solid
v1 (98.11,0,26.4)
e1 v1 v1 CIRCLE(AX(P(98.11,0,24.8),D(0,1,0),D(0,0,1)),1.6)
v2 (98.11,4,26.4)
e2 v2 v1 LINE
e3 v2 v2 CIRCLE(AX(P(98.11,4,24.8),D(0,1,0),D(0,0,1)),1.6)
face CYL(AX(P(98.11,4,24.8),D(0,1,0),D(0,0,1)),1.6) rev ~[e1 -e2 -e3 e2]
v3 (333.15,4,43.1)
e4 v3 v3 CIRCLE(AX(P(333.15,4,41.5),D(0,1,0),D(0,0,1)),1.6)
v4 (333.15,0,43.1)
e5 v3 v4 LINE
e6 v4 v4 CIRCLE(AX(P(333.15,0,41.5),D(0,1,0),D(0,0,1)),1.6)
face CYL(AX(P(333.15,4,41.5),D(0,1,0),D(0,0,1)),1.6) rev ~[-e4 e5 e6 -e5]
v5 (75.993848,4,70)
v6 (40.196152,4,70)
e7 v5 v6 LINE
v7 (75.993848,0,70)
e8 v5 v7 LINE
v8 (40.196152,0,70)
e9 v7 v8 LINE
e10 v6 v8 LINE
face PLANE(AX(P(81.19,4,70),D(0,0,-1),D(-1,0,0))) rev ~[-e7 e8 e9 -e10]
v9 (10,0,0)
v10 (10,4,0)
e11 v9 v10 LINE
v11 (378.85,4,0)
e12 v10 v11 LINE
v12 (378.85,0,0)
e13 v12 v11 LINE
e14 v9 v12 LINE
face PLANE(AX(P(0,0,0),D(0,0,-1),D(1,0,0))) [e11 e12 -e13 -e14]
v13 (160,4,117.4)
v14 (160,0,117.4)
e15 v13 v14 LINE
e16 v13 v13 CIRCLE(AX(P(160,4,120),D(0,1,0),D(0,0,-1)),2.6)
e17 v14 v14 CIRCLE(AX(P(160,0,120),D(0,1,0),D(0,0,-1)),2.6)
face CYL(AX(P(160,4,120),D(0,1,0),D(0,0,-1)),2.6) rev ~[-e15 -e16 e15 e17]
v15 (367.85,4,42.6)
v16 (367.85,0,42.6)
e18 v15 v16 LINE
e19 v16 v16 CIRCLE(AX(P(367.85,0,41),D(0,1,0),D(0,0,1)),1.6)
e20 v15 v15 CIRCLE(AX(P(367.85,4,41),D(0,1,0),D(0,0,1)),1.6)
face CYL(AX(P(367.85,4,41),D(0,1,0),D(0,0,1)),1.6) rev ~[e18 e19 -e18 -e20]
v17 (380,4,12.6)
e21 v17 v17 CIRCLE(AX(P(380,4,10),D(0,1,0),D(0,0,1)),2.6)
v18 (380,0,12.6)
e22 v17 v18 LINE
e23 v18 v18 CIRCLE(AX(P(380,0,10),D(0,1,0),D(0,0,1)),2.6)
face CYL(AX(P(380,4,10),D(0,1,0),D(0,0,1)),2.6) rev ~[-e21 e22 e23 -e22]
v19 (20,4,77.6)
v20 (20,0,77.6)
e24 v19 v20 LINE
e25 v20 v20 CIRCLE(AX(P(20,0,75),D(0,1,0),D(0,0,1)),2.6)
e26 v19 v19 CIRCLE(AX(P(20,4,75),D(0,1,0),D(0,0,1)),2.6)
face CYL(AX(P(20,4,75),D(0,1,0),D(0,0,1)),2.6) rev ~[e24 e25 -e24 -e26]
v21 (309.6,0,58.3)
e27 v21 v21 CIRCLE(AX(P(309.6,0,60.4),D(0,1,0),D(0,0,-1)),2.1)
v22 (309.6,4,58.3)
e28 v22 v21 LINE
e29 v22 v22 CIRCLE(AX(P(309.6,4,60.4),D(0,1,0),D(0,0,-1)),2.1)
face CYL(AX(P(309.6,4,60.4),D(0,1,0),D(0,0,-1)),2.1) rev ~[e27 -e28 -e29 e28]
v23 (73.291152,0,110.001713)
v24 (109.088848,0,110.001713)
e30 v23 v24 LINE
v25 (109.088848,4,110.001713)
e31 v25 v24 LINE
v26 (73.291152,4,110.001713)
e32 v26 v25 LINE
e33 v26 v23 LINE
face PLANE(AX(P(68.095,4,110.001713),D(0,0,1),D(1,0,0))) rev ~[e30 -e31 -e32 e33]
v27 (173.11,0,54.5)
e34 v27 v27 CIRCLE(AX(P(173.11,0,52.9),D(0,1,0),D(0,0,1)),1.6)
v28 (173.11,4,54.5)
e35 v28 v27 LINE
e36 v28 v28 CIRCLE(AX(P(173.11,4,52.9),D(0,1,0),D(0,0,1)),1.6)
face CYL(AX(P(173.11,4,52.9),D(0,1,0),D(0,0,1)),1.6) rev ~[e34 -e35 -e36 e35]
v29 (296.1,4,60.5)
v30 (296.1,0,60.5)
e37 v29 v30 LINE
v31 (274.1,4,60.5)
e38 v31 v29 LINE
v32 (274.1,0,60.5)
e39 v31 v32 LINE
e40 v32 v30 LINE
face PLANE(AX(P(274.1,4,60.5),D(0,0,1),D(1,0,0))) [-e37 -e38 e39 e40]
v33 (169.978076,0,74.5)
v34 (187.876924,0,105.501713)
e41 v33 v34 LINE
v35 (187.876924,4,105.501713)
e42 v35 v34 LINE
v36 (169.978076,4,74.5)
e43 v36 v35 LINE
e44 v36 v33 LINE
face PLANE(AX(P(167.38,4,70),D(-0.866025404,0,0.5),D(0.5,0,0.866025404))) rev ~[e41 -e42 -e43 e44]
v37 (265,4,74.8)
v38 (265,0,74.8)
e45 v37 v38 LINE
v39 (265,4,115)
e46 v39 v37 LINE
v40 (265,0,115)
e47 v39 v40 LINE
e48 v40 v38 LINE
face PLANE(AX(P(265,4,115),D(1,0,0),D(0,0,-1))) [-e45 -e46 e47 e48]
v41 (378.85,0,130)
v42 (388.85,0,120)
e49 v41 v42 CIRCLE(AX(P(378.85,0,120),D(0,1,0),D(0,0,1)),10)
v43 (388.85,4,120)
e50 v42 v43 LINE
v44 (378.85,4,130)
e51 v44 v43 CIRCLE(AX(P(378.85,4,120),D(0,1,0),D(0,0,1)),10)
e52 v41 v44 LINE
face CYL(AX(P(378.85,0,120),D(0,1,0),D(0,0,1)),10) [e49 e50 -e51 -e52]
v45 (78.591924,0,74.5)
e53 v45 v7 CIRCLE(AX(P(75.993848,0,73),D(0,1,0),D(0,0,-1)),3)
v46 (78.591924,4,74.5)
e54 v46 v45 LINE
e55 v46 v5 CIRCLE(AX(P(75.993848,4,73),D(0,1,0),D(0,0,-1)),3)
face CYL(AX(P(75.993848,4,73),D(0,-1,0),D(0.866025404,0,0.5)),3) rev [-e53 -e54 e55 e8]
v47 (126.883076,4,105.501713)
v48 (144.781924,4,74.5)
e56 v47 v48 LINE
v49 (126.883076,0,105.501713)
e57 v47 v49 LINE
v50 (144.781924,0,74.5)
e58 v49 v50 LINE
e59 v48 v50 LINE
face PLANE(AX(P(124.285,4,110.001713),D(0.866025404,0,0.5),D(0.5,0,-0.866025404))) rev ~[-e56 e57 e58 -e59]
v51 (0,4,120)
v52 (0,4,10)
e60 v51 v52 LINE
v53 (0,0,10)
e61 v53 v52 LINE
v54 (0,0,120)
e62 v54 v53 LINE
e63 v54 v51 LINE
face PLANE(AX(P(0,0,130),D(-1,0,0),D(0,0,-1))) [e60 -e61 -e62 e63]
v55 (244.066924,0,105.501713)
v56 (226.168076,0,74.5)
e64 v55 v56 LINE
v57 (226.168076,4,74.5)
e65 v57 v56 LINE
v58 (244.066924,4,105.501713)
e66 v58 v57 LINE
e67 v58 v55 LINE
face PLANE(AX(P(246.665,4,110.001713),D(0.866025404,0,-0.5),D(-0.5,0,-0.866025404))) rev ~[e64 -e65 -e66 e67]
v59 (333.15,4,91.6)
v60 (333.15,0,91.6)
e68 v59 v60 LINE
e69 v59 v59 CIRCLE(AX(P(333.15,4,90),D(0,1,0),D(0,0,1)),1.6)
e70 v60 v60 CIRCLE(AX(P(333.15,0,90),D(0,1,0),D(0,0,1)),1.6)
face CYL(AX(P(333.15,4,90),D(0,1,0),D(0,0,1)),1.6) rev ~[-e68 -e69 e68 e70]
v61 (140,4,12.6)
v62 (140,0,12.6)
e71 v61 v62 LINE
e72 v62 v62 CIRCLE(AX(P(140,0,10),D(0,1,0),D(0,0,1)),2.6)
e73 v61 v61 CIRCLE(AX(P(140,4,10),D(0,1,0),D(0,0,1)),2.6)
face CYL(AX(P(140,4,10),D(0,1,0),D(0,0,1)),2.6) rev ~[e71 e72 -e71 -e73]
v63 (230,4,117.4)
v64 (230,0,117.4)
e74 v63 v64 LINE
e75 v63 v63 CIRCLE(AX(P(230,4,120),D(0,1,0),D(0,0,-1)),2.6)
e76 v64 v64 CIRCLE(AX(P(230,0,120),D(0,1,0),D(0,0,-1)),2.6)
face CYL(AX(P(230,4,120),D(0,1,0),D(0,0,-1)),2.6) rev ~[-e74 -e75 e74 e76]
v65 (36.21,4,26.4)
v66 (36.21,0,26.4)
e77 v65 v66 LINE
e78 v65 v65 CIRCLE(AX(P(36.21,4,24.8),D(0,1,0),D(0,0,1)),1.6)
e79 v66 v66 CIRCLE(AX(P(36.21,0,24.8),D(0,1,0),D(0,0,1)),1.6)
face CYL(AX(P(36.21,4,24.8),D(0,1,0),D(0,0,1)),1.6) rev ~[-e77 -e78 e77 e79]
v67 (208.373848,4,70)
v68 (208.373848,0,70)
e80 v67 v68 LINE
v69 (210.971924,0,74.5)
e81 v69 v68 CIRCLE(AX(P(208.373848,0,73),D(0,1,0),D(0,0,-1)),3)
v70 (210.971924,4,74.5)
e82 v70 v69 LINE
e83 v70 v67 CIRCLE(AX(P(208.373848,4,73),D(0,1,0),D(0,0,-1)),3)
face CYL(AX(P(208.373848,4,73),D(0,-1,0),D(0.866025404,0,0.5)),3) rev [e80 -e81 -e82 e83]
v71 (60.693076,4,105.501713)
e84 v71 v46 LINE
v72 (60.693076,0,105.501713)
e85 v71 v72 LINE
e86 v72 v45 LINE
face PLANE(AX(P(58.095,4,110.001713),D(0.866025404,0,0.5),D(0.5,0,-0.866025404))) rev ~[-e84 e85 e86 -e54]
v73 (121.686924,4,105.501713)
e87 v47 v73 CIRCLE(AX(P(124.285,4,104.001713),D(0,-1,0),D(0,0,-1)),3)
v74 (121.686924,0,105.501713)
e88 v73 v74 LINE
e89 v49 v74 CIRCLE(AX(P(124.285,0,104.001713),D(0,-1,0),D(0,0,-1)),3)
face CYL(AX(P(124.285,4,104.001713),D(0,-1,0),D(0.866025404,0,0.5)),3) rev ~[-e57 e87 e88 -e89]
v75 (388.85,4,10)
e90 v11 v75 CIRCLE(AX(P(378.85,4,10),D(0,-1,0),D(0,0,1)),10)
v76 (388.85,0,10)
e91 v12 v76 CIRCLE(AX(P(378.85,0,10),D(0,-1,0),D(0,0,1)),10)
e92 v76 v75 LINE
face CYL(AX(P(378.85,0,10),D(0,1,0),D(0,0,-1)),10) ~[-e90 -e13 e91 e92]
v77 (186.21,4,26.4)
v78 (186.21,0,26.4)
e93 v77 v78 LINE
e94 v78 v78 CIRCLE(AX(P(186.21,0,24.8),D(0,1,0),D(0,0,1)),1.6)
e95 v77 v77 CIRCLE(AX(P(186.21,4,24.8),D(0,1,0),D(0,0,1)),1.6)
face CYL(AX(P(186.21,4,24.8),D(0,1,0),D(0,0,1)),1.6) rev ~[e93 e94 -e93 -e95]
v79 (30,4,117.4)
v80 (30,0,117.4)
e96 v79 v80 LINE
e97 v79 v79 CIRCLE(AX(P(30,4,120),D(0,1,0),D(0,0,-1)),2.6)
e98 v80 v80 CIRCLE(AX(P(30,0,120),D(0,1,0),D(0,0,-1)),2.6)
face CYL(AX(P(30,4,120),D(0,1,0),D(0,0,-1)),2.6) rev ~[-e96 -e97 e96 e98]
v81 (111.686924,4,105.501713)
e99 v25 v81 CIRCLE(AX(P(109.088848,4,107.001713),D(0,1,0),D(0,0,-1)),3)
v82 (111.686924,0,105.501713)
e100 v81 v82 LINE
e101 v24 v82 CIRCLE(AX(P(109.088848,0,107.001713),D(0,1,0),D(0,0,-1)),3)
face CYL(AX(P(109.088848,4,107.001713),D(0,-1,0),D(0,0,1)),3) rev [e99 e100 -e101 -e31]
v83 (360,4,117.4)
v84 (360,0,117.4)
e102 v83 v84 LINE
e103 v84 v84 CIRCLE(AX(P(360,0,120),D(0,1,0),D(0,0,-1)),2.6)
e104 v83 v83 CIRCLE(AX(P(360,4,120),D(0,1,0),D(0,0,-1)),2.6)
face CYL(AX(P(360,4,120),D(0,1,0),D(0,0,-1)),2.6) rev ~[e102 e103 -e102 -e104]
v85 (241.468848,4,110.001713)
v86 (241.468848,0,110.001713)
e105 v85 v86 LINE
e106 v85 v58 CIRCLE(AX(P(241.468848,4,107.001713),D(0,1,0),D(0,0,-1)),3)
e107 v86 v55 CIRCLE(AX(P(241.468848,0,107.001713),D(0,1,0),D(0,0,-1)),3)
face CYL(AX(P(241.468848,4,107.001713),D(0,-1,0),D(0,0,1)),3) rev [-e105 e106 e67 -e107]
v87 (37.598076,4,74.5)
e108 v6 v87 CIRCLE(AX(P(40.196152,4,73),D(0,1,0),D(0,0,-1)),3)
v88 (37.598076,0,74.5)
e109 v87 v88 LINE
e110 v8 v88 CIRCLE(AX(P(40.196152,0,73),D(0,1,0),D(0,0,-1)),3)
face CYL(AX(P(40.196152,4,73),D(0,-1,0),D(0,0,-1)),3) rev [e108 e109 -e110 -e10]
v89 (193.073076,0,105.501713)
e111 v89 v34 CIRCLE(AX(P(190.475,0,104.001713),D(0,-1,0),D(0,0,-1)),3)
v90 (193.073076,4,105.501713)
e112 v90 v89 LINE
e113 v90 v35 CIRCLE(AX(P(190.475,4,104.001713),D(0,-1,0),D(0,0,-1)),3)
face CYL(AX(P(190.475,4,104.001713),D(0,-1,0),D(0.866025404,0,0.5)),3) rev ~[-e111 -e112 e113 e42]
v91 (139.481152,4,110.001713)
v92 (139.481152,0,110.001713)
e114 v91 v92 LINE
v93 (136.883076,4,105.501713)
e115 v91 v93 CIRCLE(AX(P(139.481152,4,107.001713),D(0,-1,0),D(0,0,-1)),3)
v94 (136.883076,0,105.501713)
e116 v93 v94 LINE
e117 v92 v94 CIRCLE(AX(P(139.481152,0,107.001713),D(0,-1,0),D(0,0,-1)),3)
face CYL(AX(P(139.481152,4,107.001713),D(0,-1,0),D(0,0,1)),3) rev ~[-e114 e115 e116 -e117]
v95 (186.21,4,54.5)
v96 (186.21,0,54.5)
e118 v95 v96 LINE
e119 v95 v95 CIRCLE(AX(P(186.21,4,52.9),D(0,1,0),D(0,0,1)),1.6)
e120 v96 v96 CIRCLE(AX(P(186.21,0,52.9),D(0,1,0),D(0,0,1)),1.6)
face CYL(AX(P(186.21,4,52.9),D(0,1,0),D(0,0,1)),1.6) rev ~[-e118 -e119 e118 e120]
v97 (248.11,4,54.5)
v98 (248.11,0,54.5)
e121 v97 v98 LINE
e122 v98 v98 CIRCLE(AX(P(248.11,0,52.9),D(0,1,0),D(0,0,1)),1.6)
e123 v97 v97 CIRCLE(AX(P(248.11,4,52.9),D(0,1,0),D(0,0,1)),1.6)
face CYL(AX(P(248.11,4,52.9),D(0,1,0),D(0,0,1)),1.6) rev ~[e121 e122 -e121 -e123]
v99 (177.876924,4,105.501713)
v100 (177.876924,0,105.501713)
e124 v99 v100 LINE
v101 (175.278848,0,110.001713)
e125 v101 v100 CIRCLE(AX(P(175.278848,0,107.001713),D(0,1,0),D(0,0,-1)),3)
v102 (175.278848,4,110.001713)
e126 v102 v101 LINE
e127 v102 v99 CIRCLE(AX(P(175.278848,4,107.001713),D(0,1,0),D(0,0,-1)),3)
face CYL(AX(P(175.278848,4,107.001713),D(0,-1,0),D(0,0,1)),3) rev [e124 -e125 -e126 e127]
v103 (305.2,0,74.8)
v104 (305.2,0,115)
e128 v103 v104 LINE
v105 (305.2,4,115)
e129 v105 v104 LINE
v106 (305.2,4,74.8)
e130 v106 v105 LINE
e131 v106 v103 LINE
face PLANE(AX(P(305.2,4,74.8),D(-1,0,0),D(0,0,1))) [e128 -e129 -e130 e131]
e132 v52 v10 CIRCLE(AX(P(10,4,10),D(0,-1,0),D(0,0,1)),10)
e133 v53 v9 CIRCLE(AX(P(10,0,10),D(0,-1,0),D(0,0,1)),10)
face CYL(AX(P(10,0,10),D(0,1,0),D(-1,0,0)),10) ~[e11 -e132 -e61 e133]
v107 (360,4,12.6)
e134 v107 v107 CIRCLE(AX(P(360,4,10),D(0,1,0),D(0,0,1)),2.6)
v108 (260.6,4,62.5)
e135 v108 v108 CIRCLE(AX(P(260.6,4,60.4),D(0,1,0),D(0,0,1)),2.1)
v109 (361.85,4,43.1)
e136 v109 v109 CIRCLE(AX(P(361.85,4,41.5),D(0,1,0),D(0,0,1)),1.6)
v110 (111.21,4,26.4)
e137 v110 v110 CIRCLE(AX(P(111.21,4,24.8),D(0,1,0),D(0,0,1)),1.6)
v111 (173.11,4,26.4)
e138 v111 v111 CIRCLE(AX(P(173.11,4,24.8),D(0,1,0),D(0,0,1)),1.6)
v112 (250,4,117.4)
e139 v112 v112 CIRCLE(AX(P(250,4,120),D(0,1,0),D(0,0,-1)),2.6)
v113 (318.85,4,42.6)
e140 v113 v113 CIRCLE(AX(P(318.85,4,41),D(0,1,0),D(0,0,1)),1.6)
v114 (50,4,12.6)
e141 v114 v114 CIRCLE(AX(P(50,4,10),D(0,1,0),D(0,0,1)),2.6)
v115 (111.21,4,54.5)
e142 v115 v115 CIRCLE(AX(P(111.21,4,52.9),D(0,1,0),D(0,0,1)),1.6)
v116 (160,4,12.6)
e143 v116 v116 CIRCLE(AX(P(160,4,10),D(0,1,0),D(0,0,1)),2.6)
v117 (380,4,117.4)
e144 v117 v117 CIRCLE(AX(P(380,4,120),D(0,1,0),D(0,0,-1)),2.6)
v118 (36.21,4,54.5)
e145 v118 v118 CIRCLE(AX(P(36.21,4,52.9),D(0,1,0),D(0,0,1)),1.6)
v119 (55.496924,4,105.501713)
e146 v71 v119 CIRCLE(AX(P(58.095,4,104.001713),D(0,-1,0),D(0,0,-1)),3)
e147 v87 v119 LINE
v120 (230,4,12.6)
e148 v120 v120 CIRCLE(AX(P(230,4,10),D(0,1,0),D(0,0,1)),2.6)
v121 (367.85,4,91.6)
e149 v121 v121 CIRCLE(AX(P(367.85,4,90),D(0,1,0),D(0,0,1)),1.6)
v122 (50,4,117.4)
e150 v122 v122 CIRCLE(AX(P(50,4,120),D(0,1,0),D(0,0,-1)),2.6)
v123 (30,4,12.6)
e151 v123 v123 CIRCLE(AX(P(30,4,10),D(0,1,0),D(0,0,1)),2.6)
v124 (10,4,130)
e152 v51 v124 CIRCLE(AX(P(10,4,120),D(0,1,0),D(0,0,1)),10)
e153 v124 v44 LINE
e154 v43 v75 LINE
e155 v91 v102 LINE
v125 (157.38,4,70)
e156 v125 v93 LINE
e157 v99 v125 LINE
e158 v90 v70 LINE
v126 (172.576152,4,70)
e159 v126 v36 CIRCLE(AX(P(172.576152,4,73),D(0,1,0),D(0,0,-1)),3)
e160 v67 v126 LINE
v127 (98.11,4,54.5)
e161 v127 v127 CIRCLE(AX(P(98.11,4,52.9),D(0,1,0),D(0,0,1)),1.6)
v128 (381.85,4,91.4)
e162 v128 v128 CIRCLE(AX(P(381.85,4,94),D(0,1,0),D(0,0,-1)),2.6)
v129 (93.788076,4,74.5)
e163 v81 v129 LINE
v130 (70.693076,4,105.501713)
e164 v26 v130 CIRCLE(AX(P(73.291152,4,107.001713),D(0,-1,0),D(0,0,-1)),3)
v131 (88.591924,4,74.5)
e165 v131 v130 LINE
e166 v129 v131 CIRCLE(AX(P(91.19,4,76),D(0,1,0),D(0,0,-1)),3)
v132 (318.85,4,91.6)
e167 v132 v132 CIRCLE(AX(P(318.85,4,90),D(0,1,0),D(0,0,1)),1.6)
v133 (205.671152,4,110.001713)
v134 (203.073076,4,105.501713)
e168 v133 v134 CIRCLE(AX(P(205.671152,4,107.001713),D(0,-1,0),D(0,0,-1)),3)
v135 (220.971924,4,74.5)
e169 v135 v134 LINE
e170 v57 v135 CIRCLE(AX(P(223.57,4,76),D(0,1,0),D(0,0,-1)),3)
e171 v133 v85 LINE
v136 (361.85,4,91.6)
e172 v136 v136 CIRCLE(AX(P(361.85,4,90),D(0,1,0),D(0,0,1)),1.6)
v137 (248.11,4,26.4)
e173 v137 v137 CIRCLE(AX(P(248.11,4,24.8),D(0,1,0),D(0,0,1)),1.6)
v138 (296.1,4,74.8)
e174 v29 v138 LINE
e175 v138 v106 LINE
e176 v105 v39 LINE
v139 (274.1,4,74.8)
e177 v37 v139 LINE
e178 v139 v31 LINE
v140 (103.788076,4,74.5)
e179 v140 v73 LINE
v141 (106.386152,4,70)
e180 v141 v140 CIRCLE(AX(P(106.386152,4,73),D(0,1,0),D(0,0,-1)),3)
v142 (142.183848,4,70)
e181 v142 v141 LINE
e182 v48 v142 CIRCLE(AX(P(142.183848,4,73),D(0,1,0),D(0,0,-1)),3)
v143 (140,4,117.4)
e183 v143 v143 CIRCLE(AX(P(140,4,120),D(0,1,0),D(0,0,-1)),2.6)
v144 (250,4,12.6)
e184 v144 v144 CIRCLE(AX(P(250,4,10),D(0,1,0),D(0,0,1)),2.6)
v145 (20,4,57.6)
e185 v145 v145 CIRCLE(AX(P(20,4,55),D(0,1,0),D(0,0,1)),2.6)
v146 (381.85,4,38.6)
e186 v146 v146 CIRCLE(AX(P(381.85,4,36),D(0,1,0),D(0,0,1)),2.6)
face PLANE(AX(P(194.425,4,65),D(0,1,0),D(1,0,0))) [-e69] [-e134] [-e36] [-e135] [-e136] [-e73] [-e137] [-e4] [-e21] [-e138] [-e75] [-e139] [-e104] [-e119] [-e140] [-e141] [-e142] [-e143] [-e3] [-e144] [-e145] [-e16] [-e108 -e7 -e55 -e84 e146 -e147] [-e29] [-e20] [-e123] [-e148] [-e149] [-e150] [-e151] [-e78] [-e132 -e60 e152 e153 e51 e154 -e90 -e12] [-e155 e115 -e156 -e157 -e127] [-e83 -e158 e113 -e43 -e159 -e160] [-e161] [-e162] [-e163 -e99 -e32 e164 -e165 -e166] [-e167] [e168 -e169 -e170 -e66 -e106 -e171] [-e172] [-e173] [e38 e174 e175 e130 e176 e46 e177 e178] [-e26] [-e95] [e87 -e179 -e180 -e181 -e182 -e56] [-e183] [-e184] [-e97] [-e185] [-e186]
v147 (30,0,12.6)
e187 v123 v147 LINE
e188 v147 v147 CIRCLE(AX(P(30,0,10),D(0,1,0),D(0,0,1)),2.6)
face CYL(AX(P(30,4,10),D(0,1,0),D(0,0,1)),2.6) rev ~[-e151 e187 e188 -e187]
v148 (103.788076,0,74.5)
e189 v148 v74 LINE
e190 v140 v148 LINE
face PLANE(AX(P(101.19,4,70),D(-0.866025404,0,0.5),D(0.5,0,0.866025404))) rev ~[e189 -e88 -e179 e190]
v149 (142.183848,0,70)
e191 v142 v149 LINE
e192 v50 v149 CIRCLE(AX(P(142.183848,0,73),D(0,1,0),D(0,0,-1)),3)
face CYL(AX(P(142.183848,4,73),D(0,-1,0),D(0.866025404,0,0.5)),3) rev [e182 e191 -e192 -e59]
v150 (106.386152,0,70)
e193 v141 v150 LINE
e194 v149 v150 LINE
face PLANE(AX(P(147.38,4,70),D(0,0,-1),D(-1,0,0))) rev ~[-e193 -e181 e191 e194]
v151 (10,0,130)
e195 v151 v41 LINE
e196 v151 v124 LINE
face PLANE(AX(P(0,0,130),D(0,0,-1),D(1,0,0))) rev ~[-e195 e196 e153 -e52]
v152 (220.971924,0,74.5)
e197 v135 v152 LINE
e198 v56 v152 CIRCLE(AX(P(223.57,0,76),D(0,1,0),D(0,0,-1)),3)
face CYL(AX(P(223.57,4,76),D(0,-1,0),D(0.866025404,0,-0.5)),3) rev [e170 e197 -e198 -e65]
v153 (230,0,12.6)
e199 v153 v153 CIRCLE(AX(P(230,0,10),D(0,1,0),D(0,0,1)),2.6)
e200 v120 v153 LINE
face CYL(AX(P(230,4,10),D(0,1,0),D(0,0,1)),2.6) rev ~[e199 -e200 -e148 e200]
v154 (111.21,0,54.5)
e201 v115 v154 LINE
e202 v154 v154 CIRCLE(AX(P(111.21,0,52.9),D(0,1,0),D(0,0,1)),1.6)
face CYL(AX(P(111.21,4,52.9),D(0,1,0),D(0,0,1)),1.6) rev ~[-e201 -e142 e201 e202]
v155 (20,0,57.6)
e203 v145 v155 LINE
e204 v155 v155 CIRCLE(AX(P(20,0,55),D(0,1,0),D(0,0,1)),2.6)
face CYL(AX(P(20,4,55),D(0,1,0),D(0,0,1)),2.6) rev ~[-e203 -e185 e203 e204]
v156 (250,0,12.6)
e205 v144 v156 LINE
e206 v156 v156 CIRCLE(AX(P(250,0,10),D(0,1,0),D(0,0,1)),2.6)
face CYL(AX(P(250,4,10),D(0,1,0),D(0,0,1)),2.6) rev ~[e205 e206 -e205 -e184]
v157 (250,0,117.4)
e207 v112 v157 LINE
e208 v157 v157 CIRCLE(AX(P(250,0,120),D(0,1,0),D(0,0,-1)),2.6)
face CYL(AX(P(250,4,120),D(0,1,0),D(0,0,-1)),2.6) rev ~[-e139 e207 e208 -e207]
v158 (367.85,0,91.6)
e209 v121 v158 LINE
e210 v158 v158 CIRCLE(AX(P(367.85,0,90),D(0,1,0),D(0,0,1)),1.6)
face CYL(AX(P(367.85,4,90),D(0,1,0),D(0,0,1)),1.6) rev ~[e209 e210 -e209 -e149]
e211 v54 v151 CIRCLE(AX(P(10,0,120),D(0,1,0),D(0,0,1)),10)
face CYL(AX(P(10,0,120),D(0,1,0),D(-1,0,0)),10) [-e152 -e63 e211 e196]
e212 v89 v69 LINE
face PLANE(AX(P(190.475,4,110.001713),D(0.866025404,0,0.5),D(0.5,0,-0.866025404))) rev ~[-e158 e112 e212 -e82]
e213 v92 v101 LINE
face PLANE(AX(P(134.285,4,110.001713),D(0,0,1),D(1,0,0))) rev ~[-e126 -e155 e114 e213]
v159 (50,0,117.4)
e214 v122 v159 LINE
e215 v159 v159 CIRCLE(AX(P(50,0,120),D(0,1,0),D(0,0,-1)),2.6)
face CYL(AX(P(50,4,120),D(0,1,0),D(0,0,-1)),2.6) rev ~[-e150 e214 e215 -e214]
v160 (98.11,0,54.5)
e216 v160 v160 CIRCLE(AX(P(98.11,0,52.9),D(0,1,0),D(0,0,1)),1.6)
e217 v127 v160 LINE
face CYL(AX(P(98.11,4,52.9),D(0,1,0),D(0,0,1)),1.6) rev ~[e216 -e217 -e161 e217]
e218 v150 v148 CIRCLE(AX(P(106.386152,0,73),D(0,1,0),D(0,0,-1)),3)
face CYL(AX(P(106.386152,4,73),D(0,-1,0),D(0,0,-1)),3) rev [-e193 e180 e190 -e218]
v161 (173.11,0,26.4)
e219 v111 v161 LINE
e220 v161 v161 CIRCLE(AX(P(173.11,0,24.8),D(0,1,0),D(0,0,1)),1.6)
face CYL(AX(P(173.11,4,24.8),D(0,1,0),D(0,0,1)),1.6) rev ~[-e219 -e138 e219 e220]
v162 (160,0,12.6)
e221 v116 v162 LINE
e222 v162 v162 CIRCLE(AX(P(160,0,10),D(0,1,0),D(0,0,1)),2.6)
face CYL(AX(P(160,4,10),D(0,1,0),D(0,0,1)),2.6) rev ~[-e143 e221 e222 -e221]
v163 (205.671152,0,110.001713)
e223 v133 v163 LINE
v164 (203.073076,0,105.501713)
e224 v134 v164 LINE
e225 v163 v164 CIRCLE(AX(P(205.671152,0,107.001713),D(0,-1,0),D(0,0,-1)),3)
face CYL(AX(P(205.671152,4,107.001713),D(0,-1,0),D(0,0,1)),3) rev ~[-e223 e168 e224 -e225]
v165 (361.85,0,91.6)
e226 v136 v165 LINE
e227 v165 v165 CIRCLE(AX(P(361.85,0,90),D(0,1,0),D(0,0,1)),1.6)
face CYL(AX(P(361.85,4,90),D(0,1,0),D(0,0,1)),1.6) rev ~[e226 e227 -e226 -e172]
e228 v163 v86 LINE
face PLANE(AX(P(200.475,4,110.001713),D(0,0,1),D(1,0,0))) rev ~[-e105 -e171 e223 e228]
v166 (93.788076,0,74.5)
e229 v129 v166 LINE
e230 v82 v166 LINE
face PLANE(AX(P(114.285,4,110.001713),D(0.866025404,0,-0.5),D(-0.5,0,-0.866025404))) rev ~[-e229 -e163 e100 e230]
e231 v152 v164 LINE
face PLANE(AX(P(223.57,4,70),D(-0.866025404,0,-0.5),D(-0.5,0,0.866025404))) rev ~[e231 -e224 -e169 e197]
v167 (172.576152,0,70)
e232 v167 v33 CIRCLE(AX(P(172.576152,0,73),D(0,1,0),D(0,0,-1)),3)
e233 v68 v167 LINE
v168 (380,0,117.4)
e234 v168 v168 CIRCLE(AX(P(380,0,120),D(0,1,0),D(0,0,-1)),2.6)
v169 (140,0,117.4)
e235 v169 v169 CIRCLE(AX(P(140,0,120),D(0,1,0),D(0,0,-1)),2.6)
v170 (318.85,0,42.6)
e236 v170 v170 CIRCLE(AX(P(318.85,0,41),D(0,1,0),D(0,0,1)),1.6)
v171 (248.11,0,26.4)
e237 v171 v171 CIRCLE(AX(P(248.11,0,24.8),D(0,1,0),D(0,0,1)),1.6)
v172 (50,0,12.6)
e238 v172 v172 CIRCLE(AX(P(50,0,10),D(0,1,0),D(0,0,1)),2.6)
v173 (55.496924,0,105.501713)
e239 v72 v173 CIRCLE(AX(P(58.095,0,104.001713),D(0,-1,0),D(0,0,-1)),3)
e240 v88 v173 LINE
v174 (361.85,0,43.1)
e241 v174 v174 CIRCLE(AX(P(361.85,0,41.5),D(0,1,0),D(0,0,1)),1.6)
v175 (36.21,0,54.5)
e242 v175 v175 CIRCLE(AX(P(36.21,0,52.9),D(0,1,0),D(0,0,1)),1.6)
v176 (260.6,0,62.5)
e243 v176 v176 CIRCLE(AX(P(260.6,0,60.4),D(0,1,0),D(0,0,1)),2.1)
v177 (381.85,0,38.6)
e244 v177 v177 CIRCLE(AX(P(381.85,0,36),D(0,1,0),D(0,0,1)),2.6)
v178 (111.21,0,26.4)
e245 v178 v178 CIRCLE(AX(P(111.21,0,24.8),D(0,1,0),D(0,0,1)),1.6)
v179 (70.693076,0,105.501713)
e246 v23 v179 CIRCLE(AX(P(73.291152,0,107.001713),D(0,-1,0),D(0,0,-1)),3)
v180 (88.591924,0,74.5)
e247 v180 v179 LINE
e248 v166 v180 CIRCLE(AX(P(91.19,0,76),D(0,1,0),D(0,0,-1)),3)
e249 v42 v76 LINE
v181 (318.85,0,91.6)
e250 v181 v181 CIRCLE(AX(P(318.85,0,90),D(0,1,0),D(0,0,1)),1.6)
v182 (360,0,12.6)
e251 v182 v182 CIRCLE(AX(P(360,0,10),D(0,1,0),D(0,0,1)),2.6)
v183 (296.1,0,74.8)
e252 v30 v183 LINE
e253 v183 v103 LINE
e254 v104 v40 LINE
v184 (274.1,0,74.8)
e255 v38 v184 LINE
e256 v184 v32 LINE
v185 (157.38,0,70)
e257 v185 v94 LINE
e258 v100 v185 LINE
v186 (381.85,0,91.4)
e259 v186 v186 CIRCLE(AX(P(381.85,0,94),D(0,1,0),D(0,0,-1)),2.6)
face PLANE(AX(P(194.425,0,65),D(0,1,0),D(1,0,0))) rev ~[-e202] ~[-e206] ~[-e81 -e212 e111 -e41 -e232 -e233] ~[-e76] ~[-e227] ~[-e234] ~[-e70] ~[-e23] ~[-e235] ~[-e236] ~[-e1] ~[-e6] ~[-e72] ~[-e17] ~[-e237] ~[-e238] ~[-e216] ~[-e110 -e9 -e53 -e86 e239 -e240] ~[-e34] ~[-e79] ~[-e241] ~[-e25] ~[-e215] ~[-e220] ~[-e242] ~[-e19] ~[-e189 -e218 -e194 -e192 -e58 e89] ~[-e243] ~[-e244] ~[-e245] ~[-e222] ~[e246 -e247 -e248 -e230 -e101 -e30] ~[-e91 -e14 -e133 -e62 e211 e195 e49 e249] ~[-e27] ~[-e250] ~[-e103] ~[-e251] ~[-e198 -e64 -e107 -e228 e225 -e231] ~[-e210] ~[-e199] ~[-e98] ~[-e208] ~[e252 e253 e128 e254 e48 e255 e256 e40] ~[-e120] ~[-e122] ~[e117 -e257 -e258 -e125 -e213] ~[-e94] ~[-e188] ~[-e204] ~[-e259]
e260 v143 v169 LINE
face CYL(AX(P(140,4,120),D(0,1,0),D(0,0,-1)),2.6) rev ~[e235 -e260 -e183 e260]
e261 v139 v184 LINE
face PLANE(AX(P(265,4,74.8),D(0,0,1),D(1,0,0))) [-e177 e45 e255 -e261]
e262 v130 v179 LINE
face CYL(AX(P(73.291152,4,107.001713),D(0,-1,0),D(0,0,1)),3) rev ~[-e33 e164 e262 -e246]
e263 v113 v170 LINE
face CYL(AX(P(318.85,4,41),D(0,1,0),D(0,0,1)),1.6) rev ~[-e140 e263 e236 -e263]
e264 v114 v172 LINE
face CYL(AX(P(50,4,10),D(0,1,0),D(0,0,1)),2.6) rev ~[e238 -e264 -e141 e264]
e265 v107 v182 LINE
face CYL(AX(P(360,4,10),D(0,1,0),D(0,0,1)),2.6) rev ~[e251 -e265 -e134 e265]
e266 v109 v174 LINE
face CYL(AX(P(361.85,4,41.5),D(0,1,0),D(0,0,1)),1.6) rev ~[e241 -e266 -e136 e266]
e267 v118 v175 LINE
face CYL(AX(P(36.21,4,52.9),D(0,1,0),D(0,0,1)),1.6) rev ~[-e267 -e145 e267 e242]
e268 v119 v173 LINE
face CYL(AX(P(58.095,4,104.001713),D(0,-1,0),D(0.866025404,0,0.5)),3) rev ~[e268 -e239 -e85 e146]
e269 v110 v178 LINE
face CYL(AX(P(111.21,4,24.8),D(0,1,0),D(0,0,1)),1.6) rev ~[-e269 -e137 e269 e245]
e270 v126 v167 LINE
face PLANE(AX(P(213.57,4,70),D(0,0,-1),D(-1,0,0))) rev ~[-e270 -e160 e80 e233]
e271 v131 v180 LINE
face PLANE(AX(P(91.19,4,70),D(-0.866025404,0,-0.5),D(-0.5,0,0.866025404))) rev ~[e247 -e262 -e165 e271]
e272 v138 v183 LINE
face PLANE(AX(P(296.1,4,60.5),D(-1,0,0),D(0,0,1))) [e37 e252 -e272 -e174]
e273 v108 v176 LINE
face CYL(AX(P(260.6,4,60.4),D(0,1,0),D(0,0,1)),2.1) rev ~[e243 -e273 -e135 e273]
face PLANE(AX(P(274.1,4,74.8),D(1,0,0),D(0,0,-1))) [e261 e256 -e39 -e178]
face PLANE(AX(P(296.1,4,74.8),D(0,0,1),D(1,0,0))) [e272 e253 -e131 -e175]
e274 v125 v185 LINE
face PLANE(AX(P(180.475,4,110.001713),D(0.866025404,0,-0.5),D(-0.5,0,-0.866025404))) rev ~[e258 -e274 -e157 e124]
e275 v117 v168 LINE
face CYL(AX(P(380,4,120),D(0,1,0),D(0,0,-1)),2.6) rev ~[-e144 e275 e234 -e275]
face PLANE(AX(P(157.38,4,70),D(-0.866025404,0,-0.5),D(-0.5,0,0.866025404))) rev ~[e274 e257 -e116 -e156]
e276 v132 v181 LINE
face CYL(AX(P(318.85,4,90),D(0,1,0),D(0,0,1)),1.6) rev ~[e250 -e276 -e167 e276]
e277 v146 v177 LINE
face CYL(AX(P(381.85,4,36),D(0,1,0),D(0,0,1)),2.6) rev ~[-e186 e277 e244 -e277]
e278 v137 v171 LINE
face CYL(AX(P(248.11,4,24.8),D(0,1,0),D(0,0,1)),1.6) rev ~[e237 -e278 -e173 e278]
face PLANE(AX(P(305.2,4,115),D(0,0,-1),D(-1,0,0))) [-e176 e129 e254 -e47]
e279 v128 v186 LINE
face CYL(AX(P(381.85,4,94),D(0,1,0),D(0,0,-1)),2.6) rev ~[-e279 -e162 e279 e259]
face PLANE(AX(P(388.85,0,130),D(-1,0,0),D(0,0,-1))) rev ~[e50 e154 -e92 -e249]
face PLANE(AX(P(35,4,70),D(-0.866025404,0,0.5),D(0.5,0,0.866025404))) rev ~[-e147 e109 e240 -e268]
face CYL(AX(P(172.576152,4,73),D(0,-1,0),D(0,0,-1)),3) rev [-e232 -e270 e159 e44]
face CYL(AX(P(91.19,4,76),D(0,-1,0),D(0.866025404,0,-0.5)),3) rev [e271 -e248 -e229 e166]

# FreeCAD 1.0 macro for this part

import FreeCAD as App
import Part
import Sketcher

V = App.Vector
Q = App.Units.Quantity


def edges_at(feature, points):
    """Names of the edges that pass closest to the given points."""
    edges = feature.Shape.Edges
    near = lambda p: min(range(len(edges)), key=lambda i: edges[i].distToShape(Part.Vertex(*p))[0])
    return sorted({f"Edge{near(p) + 1}" for p in points})

doc = App.newDocument("Part")
body = doc.addObject("PartDesign::Body", "Body")

sketch1 = body.newObject("Sketcher::SketchObject", "Sketch")
sketch1.AttachmentSupport = (doc.getObject("XZ_Plane"), [""])
sketch1.MapMode = "FlatFace"
sketch1.addGeometry(Part.LineSegment(V(0, 0, 0), V(0, 130, 0)), False)
sketch1.addGeometry(Part.LineSegment(V(0, 130, 0), V(389, 130, 0)), False)
sketch1.addGeometry(Part.LineSegment(V(389, 130, 0), V(389, 0, 0)), False)
sketch1.addGeometry(Part.LineSegment(V(389, 0, 0), V(0, 0, 0)), False)
sketch1.addConstraint(Sketcher.Constraint("Coincident", 0, 2, 1, 1))
sketch1.addConstraint(Sketcher.Constraint("Coincident", 1, 2, 2, 1))
sketch1.addConstraint(Sketcher.Constraint("Coincident", 2, 2, 3, 1))
sketch1.addConstraint(Sketcher.Constraint("Coincident", 3, 2, 0, 1))
sketch1.addConstraint(Sketcher.Constraint("Vertical", 0))
sketch1.addConstraint(Sketcher.Constraint("Horizontal", 1))
sketch1.addConstraint(Sketcher.Constraint("Vertical", 2))
sketch1.addConstraint(Sketcher.Constraint("Horizontal", 3))
sketch1.addConstraint(Sketcher.Constraint("Coincident", 3, 2, -1, 1))
sketch1.addConstraint(Sketcher.Constraint("DistanceY", 0, 1, 0, 2, 130.0))
sketch1.addConstraint(Sketcher.Constraint("DistanceX", 1, 1, 1, 2, 388.85))
pad1 = body.newObject("PartDesign::Pad", "Pad")
pad1.Profile = sketch1
pad1.Length = 4
pad1.Reversed = True

sketch2 = body.newObject("Sketcher::SketchObject", "Sketch001")
sketch2.AttachmentSupport = (doc.getObject("XZ_Plane"), [""])
sketch2.MapMode = "FlatFace"
sketch2.AttachmentOffset = App.Placement(V(0, 0, -4), App.Rotation())
sketch2.addGeometry(Part.Circle(V(36.2, 52.9, 0), V(0, 0, 1), 1.6), False)
sketch2.addGeometry(Part.Circle(V(98.1, 52.9, 0), V(0, 0, 1), 1.6), False)
sketch2.addGeometry(Part.Circle(V(98.1, 24.8, 0), V(0, 0, 1), 1.6), False)
sketch2.addGeometry(Part.Circle(V(111.2, 24.8, 0), V(0, 0, 1), 1.6), False)
sketch2.addGeometry(Part.Circle(V(111.2, 52.9, 0), V(0, 0, 1), 1.6), False)
sketch2.addGeometry(Part.Circle(V(173.1, 24.8, 0), V(0, 0, 1), 1.6), False)
sketch2.addGeometry(Part.Circle(V(173.1, 52.9, 0), V(0, 0, 1), 1.6), False)
sketch2.addGeometry(Part.Circle(V(186.2, 24.8, 0), V(0, 0, 1), 1.6), False)
sketch2.addGeometry(Part.Circle(V(186.2, 52.9, 0), V(0, 0, 1), 1.6), False)
sketch2.addGeometry(Part.Circle(V(248.1, 52.9, 0), V(0, 0, 1), 1.6), False)
sketch2.addGeometry(Part.Circle(V(36.2, 24.8, 0), V(0, 0, 1), 1.6), False)
sketch2.addGeometry(Part.Circle(V(248.1, 24.8, 0), V(0, 0, 1), 1.6), False)
sketch2.addConstraint(Sketcher.Constraint("Equal", 0, 1))
sketch2.addConstraint(Sketcher.Constraint("Equal", 1, 2))
sketch2.addConstraint(Sketcher.Constraint("Equal", 2, 3))
sketch2.addConstraint(Sketcher.Constraint("Equal", 3, 4))
sketch2.addConstraint(Sketcher.Constraint("Equal", 4, 5))
sketch2.addConstraint(Sketcher.Constraint("Equal", 5, 6))
sketch2.addConstraint(Sketcher.Constraint("Equal", 6, 7))
sketch2.addConstraint(Sketcher.Constraint("Equal", 7, 8))
sketch2.addConstraint(Sketcher.Constraint("Equal", 8, 9))
sketch2.addConstraint(Sketcher.Constraint("Equal", 9, 10))
sketch2.addConstraint(Sketcher.Constraint("Equal", 10, 11))
sketch2.addConstraint(Sketcher.Constraint("Horizontal", 0, 3, 1, 3))
sketch2.addConstraint(Sketcher.Constraint("Horizontal", 2, 3, 3, 3))
sketch2.addConstraint(Sketcher.Constraint("Horizontal", 1, 3, 4, 3))
sketch2.addConstraint(Sketcher.Constraint("Horizontal", 3, 3, 5, 3))
sketch2.addConstraint(Sketcher.Constraint("Horizontal", 4, 3, 6, 3))
sketch2.addConstraint(Sketcher.Constraint("Horizontal", 5, 3, 7, 3))
sketch2.addConstraint(Sketcher.Constraint("Horizontal", 6, 3, 8, 3))
sketch2.addConstraint(Sketcher.Constraint("Horizontal", 8, 3, 9, 3))
sketch2.addConstraint(Sketcher.Constraint("Horizontal", 7, 3, 10, 3))
sketch2.addConstraint(Sketcher.Constraint("Horizontal", 10, 3, 11, 3))
sketch2.addConstraint(Sketcher.Constraint("Vertical", 1, 3, 2, 3))
sketch2.addConstraint(Sketcher.Constraint("Vertical", 3, 3, 4, 3))
sketch2.addConstraint(Sketcher.Constraint("Vertical", 5, 3, 6, 3))
sketch2.addConstraint(Sketcher.Constraint("Vertical", 7, 3, 8, 3))
sketch2.addConstraint(Sketcher.Constraint("Vertical", 0, 3, 10, 3))
sketch2.addConstraint(Sketcher.Constraint("Vertical", 9, 3, 11, 3))
sketch2.addConstraint(Sketcher.Constraint("Diameter", 0, 3.2))
sketch2.addConstraint(Sketcher.Constraint("DistanceX", 0, 3, 3, 3, 75.0))
sketch2.addConstraint(Sketcher.Constraint("DistanceX", 2, 3, 5, 3, 75.0))
sketch2.addConstraint(Sketcher.Constraint("DistanceX", 3, 3, 7, 3, 75.0))
sketch2.addConstraint(Sketcher.Constraint("DistanceX", 6, 3, 9, 3, 75.0))
sketch2.addConstraint(Sketcher.Constraint("DistanceY", -1, 1, 0, 3, 52.9))
sketch2.addConstraint(Sketcher.Constraint("DistanceY", -1, 1, 2, 3, 24.8))
sketch2.addConstraint(Sketcher.Constraint("DistanceX", 0, 3, 1, 3, 61.9))
sketch2.addConstraint(Sketcher.Constraint("DistanceX", -1, 1, 0, 3, 36.21))
pocket1 = body.newObject("PartDesign::Pocket", "Pocket")
pocket1.Profile = sketch2
pocket1.Length = 4
pocket1.Reversed = True

sketch3 = body.newObject("Sketcher::SketchObject", "Sketch002")
sketch3.AttachmentSupport = (doc.getObject("XZ_Plane"), [""])
sketch3.MapMode = "FlatFace"
sketch3.AttachmentOffset = App.Placement(V(0, 0, -4), App.Rotation())
sketch3.addGeometry(Part.Circle(V(20, 75, 0), V(0, 0, 1), 2.6), False)
sketch3.addGeometry(Part.Circle(V(20, 55, 0), V(0, 0, 1), 2.6), False)
sketch3.addConstraint(Sketcher.Constraint("Equal", 0, 1))
sketch3.addConstraint(Sketcher.Constraint("Vertical", 0, 3, 1, 3))
sketch3.addConstraint(Sketcher.Constraint("Diameter", 0, 5.2))
sketch3.addConstraint(Sketcher.Constraint("DistanceX", -1, 1, 0, 3, 20.0))
sketch3.addConstraint(Sketcher.Constraint("DistanceY", -1, 1, 0, 3, 75.0))
sketch3.addConstraint(Sketcher.Constraint("DistanceY", -1, 1, 1, 3, 55.0))
pocket2 = body.newObject("PartDesign::Pocket", "Pocket001")
pocket2.Profile = sketch3
pocket2.Type = "ThroughAll"
pocket2.Reversed = True

sketch4 = body.newObject("Sketcher::SketchObject", "Sketch003")
sketch4.AttachmentSupport = (doc.getObject("XZ_Plane"), [""])
sketch4.MapMode = "FlatFace"
sketch4.AttachmentOffset = App.Placement(V(0, 0, -4), App.Rotation())
sketch4.addGeometry(Part.Circle(V(30, 10, 0), V(0, 0, 1), 2.6), False)
sketch4.addGeometry(Part.Circle(V(50, 10, 0), V(0, 0, 1), 2.6), False)
sketch4.addGeometry(Part.Circle(V(140, 10, 0), V(0, 0, 1), 2.6), False)
sketch4.addGeometry(Part.Circle(V(160, 10, 0), V(0, 0, 1), 2.6), False)
sketch4.addGeometry(Part.Circle(V(230, 10, 0), V(0, 0, 1), 2.6), False)
sketch4.addGeometry(Part.Circle(V(250, 10, 0), V(0, 0, 1), 2.6), False)
sketch4.addGeometry(Part.Circle(V(360, 10, 0), V(0, 0, 1), 2.6), False)
sketch4.addGeometry(Part.Circle(V(380, 10, 0), V(0, 0, 1), 2.6), False)
sketch4.addGeometry(Part.Circle(V(380, 120, 0), V(0, 0, 1), 2.6), False)
sketch4.addGeometry(Part.Circle(V(360, 120, 0), V(0, 0, 1), 2.6), False)
sketch4.addGeometry(Part.Circle(V(250, 120, 0), V(0, 0, 1), 2.6), False)
sketch4.addGeometry(Part.Circle(V(230, 120, 0), V(0, 0, 1), 2.6), False)
sketch4.addGeometry(Part.Circle(V(160, 120, 0), V(0, 0, 1), 2.6), False)
sketch4.addGeometry(Part.Circle(V(140, 120, 0), V(0, 0, 1), 2.6), False)
sketch4.addGeometry(Part.Circle(V(50, 120, 0), V(0, 0, 1), 2.6), False)
sketch4.addGeometry(Part.Circle(V(30, 120, 0), V(0, 0, 1), 2.6), False)
sketch4.addConstraint(Sketcher.Constraint("Equal", 0, 1))
sketch4.addConstraint(Sketcher.Constraint("Equal", 1, 2))
sketch4.addConstraint(Sketcher.Constraint("Equal", 2, 3))
sketch4.addConstraint(Sketcher.Constraint("Equal", 3, 4))
sketch4.addConstraint(Sketcher.Constraint("Equal", 4, 5))
sketch4.addConstraint(Sketcher.Constraint("Equal", 5, 6))
sketch4.addConstraint(Sketcher.Constraint("Equal", 6, 7))
sketch4.addConstraint(Sketcher.Constraint("Equal", 7, 8))
sketch4.addConstraint(Sketcher.Constraint("Equal", 8, 9))
sketch4.addConstraint(Sketcher.Constraint("Equal", 9, 10))
sketch4.addConstraint(Sketcher.Constraint("Equal", 10, 11))
sketch4.addConstraint(Sketcher.Constraint("Equal", 11, 12))
sketch4.addConstraint(Sketcher.Constraint("Equal", 12, 13))
sketch4.addConstraint(Sketcher.Constraint("Equal", 13, 14))
sketch4.addConstraint(Sketcher.Constraint("Equal", 14, 15))
sketch4.addConstraint(Sketcher.Constraint("Horizontal", 0, 3, 1, 3))
sketch4.addConstraint(Sketcher.Constraint("Horizontal", 1, 3, 2, 3))
sketch4.addConstraint(Sketcher.Constraint("Horizontal", 2, 3, 3, 3))
sketch4.addConstraint(Sketcher.Constraint("Horizontal", 3, 3, 4, 3))
sketch4.addConstraint(Sketcher.Constraint("Horizontal", 4, 3, 5, 3))
sketch4.addConstraint(Sketcher.Constraint("Horizontal", 5, 3, 6, 3))
sketch4.addConstraint(Sketcher.Constraint("Horizontal", 6, 3, 7, 3))
sketch4.addConstraint(Sketcher.Constraint("Horizontal", 8, 3, 9, 3))
sketch4.addConstraint(Sketcher.Constraint("Horizontal", 9, 3, 10, 3))
sketch4.addConstraint(Sketcher.Constraint("Horizontal", 10, 3, 11, 3))
sketch4.addConstraint(Sketcher.Constraint("Horizontal", 11, 3, 12, 3))
sketch4.addConstraint(Sketcher.Constraint("Horizontal", 12, 3, 13, 3))
sketch4.addConstraint(Sketcher.Constraint("Horizontal", 13, 3, 14, 3))
sketch4.addConstraint(Sketcher.Constraint("Horizontal", 14, 3, 15, 3))
sketch4.addConstraint(Sketcher.Constraint("Vertical", 7, 3, 8, 3))
sketch4.addConstraint(Sketcher.Constraint("Vertical", 6, 3, 9, 3))
sketch4.addConstraint(Sketcher.Constraint("Vertical", 5, 3, 10, 3))
sketch4.addConstraint(Sketcher.Constraint("Vertical", 4, 3, 11, 3))
sketch4.addConstraint(Sketcher.Constraint("Vertical", 3, 3, 12, 3))
sketch4.addConstraint(Sketcher.Constraint("Vertical", 2, 3, 13, 3))
sketch4.addConstraint(Sketcher.Constraint("Vertical", 1, 3, 14, 3))
sketch4.addConstraint(Sketcher.Constraint("Vertical", 0, 3, 15, 3))
sketch4.addConstraint(Sketcher.Constraint("Diameter", 0, 5.2))
sketch4.addConstraint(Sketcher.Constraint("DistanceX", -1, 1, 0, 3, 30.0))
sketch4.addConstraint(Sketcher.Constraint("DistanceY", -1, 1, 0, 3, 10.0))
sketch4.addConstraint(Sketcher.Constraint("DistanceX", -1, 1, 1, 3, 50.0))
sketch4.addConstraint(Sketcher.Constraint("DistanceX", -1, 1, 2, 3, 140.0))
sketch4.addConstraint(Sketcher.Constraint("DistanceX", -1, 1, 3, 3, 160.0))
sketch4.addConstraint(Sketcher.Constraint("DistanceX", -1, 1, 4, 3, 230.0))
sketch4.addConstraint(Sketcher.Constraint("DistanceX", -1, 1, 5, 3, 250.0))
sketch4.addConstraint(Sketcher.Constraint("DistanceX", -1, 1, 6, 3, 360.0))
sketch4.addConstraint(Sketcher.Constraint("DistanceX", -1, 1, 7, 3, 380.0))
sketch4.addConstraint(Sketcher.Constraint("DistanceY", -1, 1, 8, 3, 120.0))
pocket3 = body.newObject("PartDesign::Pocket", "Pocket002")
pocket3.Profile = sketch4
pocket3.Type = "ThroughAll"
pocket3.Reversed = True

sketch5 = body.newObject("Sketcher::SketchObject", "Sketch004")
sketch5.AttachmentSupport = (doc.getObject("XZ_Plane"), [""])
sketch5.MapMode = "FlatFace"
sketch5.AttachmentOffset = App.Placement(V(0, 0, -4), App.Rotation())
sketch5.addGeometry(Part.Circle(V(260.6, 60.4, 0), V(0, 0, 1), 2.1), False)
sketch5.addGeometry(Part.Circle(V(309.6, 60.4, 0), V(0, 0, 1), 2.1), False)
sketch5.addGeometry(Part.LineSegment(V(305.2, 115, 0), V(305.2, 74.8, 0)), False)
sketch5.addGeometry(Part.LineSegment(V(305.2, 74.8, 0), V(296.1, 74.8, 0)), False)
sketch5.addGeometry(Part.LineSegment(V(296.1, 74.8, 0), V(296.1, 60.5, 0)), False)
sketch5.addGeometry(Part.LineSegment(V(296.1, 60.5, 0), V(274.1, 60.5, 0)), False)
sketch5.addGeometry(Part.LineSegment(V(274.1, 60.5, 0), V(274.1, 74.8, 0)), False)
sketch5.addGeometry(Part.LineSegment(V(274.1, 74.8, 0), V(265, 74.8, 0)), False)
sketch5.addGeometry(Part.LineSegment(V(265, 74.8, 0), V(265, 115, 0)), False)
sketch5.addGeometry(Part.LineSegment(V(265, 115, 0), V(305.2, 115, 0)), False)
sketch5.addConstraint(Sketcher.Constraint("Coincident", 2, 2, 3, 1))
sketch5.addConstraint(Sketcher.Constraint("Coincident", 3, 2, 4, 1))
sketch5.addConstraint(Sketcher.Constraint("Coincident", 4, 2, 5, 1))
sketch5.addConstraint(Sketcher.Constraint("Coincident", 5, 2, 6, 1))
sketch5.addConstraint(Sketcher.Constraint("Coincident", 6, 2, 7, 1))
sketch5.addConstraint(Sketcher.Constraint("Coincident", 7, 2, 8, 1))
sketch5.addConstraint(Sketcher.Constraint("Coincident", 8, 2, 9, 1))
sketch5.addConstraint(Sketcher.Constraint("Coincident", 9, 2, 2, 1))
sketch5.addConstraint(Sketcher.Constraint("Vertical", 2))
sketch5.addConstraint(Sketcher.Constraint("Horizontal", 3))
sketch5.addConstraint(Sketcher.Constraint("Vertical", 4))
sketch5.addConstraint(Sketcher.Constraint("Horizontal", 5))
sketch5.addConstraint(Sketcher.Constraint("Vertical", 6))
sketch5.addConstraint(Sketcher.Constraint("Horizontal", 7))
sketch5.addConstraint(Sketcher.Constraint("Vertical", 8))
sketch5.addConstraint(Sketcher.Constraint("Horizontal", 9))
sketch5.addConstraint(Sketcher.Constraint("Equal", 0, 1))
sketch5.addConstraint(Sketcher.Constraint("Horizontal", 0, 3, 1, 3))
sketch5.addConstraint(Sketcher.Constraint("Horizontal", 3, 2, 6, 2))
sketch5.addConstraint(Sketcher.Constraint("Equal", 3, 7))
sketch5.addConstraint(Sketcher.Constraint("Equal", 9, 2))
sketch5.addConstraint(Sketcher.Constraint("Diameter", 0, 4.2))
sketch5.addConstraint(Sketcher.Constraint("DistanceX", 5, 2, 5, 1, 22.0))
sketch5.addConstraint(Sketcher.Constraint("DistanceX", 3, 2, 3, 1, 9.1))
sketch5.addConstraint(Sketcher.Constraint("DistanceY", 4, 2, 4, 1, 14.3))
sketch5.addConstraint(Sketcher.Constraint("DistanceX", -1, 1, 7, 2, 265.0))
sketch5.addConstraint(Sketcher.Constraint("DistanceY", -1, 1, 8, 2, 115.0))
sketch5.addConstraint(Sketcher.Constraint("DistanceX", 0, 3, 1, 3, 49.0))
sketch5.addConstraint(Sketcher.Constraint("DistanceX", -1, 1, 0, 3, 260.6))
sketch5.addConstraint(Sketcher.Constraint("DistanceY", -1, 1, 0, 3, 60.4))
pocket4 = body.newObject("PartDesign::Pocket", "Pocket003")
pocket4.Profile = sketch5
pocket4.Type = "ThroughAll"
pocket4.Reversed = True

sketch6 = body.newObject("Sketcher::SketchObject", "Sketch005")
sketch6.AttachmentSupport = (doc.getObject("XZ_Plane"), [""])
sketch6.MapMode = "FlatFace"
sketch6.AttachmentOffset = App.Placement(V(0, 0, -4), App.Rotation())
sketch6.addGeometry(Part.Circle(V(318.9, 41, 0), V(0, 0, 1), 1.6), False)
sketch6.addGeometry(Part.Circle(V(367.9, 41, 0), V(0, 0, 1), 1.6), False)
sketch6.addGeometry(Part.Circle(V(318.9, 90, 0), V(0, 0, 1), 1.6), False)
sketch6.addGeometry(Part.Circle(V(367.9, 90, 0), V(0, 0, 1), 1.6), False)
sketch6.addConstraint(Sketcher.Constraint("Equal", 0, 1))
sketch6.addConstraint(Sketcher.Constraint("Equal", 1, 2))
sketch6.addConstraint(Sketcher.Constraint("Equal", 2, 3))
sketch6.addConstraint(Sketcher.Constraint("Horizontal", 0, 3, 1, 3))
sketch6.addConstraint(Sketcher.Constraint("Horizontal", 2, 3, 3, 3))
sketch6.addConstraint(Sketcher.Constraint("Vertical", 0, 3, 2, 3))
sketch6.addConstraint(Sketcher.Constraint("Vertical", 1, 3, 3, 3))
sketch6.addConstraint(Sketcher.Constraint("Diameter", 0, 3.2))
sketch6.addConstraint(Sketcher.Constraint("DistanceY", -1, 1, 0, 3, 41.0))
sketch6.addConstraint(Sketcher.Constraint("DistanceY", -1, 1, 2, 3, 90.0))
sketch6.addConstraint(Sketcher.Constraint("DistanceX", 0, 3, 1, 3, 49.0))
sketch6.addConstraint(Sketcher.Constraint("DistanceX", -1, 1, 0, 3, 318.85))
pocket5 = body.newObject("PartDesign::Pocket", "Pocket004")
pocket5.Profile = sketch6
pocket5.Type = "ThroughAll"
pocket5.Reversed = True

sketch7 = body.newObject("Sketcher::SketchObject", "Sketch006")
sketch7.AttachmentSupport = (doc.getObject("XZ_Plane"), [""])
sketch7.MapMode = "FlatFace"
sketch7.AttachmentOffset = App.Placement(V(0, 0, -4), App.Rotation())
sketch7.addGeometry(Part.Circle(V(333.1, 41.5, 0), V(0, 0, 1), 1.6), False)
sketch7.addGeometry(Part.Circle(V(361.9, 41.5, 0), V(0, 0, 1), 1.6), False)
sketch7.addGeometry(Part.Circle(V(333.1, 90, 0), V(0, 0, 1), 1.6), False)
sketch7.addGeometry(Part.Circle(V(361.9, 90, 0), V(0, 0, 1), 1.6), False)
sketch7.addConstraint(Sketcher.Constraint("Equal", 0, 1))
sketch7.addConstraint(Sketcher.Constraint("Equal", 1, 2))
sketch7.addConstraint(Sketcher.Constraint("Equal", 2, 3))
sketch7.addConstraint(Sketcher.Constraint("Horizontal", 0, 3, 1, 3))
sketch7.addConstraint(Sketcher.Constraint("Horizontal", 2, 3, 3, 3))
sketch7.addConstraint(Sketcher.Constraint("Vertical", 0, 3, 2, 3))
sketch7.addConstraint(Sketcher.Constraint("Vertical", 1, 3, 3, 3))
sketch7.addConstraint(Sketcher.Constraint("Diameter", 0, 3.2))
sketch7.addConstraint(Sketcher.Constraint("DistanceY", -1, 1, 2, 3, 90.0))
sketch7.addConstraint(Sketcher.Constraint("DistanceY", -1, 1, 0, 3, 41.5))
sketch7.addConstraint(Sketcher.Constraint("DistanceX", 0, 3, 1, 3, 28.7))
sketch7.addConstraint(Sketcher.Constraint("DistanceX", -1, 1, 0, 3, 333.15))
pocket6 = body.newObject("PartDesign::Pocket", "Pocket005")
pocket6.Profile = sketch7
pocket6.Type = "ThroughAll"
pocket6.Reversed = True

sketch8 = body.newObject("Sketcher::SketchObject", "Sketch007")
sketch8.AttachmentSupport = (doc.getObject("XZ_Plane"), [""])
sketch8.MapMode = "FlatFace"
sketch8.AttachmentOffset = App.Placement(V(0, 0, -4), App.Rotation())
sketch8.addGeometry(Part.Circle(V(381.9, 36, 0), V(0, 0, 1), 2.6), False)
sketch8.addGeometry(Part.Circle(V(381.9, 94, 0), V(0, 0, 1), 2.6), False)
sketch8.addConstraint(Sketcher.Constraint("Equal", 0, 1))
sketch8.addConstraint(Sketcher.Constraint("Vertical", 0, 3, 1, 3))
sketch8.addConstraint(Sketcher.Constraint("Diameter", 0, 5.2))
sketch8.addConstraint(Sketcher.Constraint("DistanceY", -1, 1, 0, 3, 36.0))
sketch8.addConstraint(Sketcher.Constraint("DistanceY", -1, 1, 1, 3, 94.0))
sketch8.addConstraint(Sketcher.Constraint("DistanceX", -1, 1, 0, 3, 381.85))
pocket7 = body.newObject("PartDesign::Pocket", "Pocket006")
pocket7.Profile = sketch8
pocket7.Type = "ThroughAll"
pocket7.Reversed = True
doc.recompute()

fillet = body.newObject("PartDesign::Fillet", "Fillet")
fillet.Base = (pocket7, edges_at(pocket7, [
    (0, 2, 0),
    (388.85, 2, 0),
    (388.85, 2, 130),
    (0, 2, 130),
]))
fillet.Radius = 10

sketch9 = body.newObject("Sketcher::SketchObject", "Sketch008")
sketch9.AttachmentSupport = (doc.getObject("XZ_Plane"), [""])
sketch9.MapMode = "FlatFace"
sketch9.AttachmentOffset = App.Placement(V(0, 0, -4), App.Rotation())
sketch9.addGeometry(Part.LineSegment(V(58, 110, 0), V(81, 70, 0)), False)
sketch9.addGeometry(Part.LineSegment(V(81, 70, 0), V(35, 70, 0)), False)
sketch9.addGeometry(Part.LineSegment(V(35, 70, 0), V(58, 110, 0)), False)
sketch9.addGeometry(Part.LineSegment(V(68, 110, 0), V(114, 110, 0)), False)
sketch9.addGeometry(Part.LineSegment(V(114, 110, 0), V(91, 70, 0)), False)
sketch9.addGeometry(Part.LineSegment(V(91, 70, 0), V(68, 110, 0)), False)
sketch9.addGeometry(Part.LineSegment(V(124, 110, 0), V(147, 70, 0)), False)
sketch9.addGeometry(Part.LineSegment(V(147, 70, 0), V(101, 70, 0)), False)
sketch9.addGeometry(Part.LineSegment(V(101, 70, 0), V(124, 110, 0)), False)
sketch9.addGeometry(Part.LineSegment(V(134, 110, 0), V(180, 110, 0)), False)
sketch9.addGeometry(Part.LineSegment(V(180, 110, 0), V(157, 70, 0)), False)
sketch9.addGeometry(Part.LineSegment(V(157, 70, 0), V(134, 110, 0)), False)
sketch9.addGeometry(Part.LineSegment(V(190, 110, 0), V(214, 70, 0)), False)
sketch9.addGeometry(Part.LineSegment(V(214, 70, 0), V(167, 70, 0)), False)
sketch9.addGeometry(Part.LineSegment(V(167, 70, 0), V(190, 110, 0)), False)
sketch9.addGeometry(Part.LineSegment(V(200, 110, 0), V(247, 110, 0)), False)
sketch9.addGeometry(Part.LineSegment(V(247, 110, 0), V(224, 70, 0)), False)
sketch9.addGeometry(Part.LineSegment(V(224, 70, 0), V(200, 110, 0)), False)
sketch9.addConstraint(Sketcher.Constraint("Coincident", 0, 2, 1, 1))
sketch9.addConstraint(Sketcher.Constraint("Coincident", 1, 2, 2, 1))
sketch9.addConstraint(Sketcher.Constraint("Coincident", 2, 2, 0, 1))
sketch9.addConstraint(Sketcher.Constraint("Coincident", 3, 2, 4, 1))
sketch9.addConstraint(Sketcher.Constraint("Coincident", 4, 2, 5, 1))
sketch9.addConstraint(Sketcher.Constraint("Coincident", 5, 2, 3, 1))
sketch9.addConstraint(Sketcher.Constraint("Coincident", 6, 2, 7, 1))
sketch9.addConstraint(Sketcher.Constraint("Coincident", 7, 2, 8, 1))
sketch9.addConstraint(Sketcher.Constraint("Coincident", 8, 2, 6, 1))
sketch9.addConstraint(Sketcher.Constraint("Coincident", 9, 2, 10, 1))
sketch9.addConstraint(Sketcher.Constraint("Coincident", 10, 2, 11, 1))
sketch9.addConstraint(Sketcher.Constraint("Coincident", 11, 2, 9, 1))
sketch9.addConstraint(Sketcher.Constraint("Coincident", 12, 2, 13, 1))
sketch9.addConstraint(Sketcher.Constraint("Coincident", 13, 2, 14, 1))
sketch9.addConstraint(Sketcher.Constraint("Coincident", 14, 2, 12, 1))
sketch9.addConstraint(Sketcher.Constraint("Coincident", 15, 2, 16, 1))
sketch9.addConstraint(Sketcher.Constraint("Coincident", 16, 2, 17, 1))
sketch9.addConstraint(Sketcher.Constraint("Coincident", 17, 2, 15, 1))
sketch9.addConstraint(Sketcher.Constraint("Horizontal", 1))
sketch9.addConstraint(Sketcher.Constraint("Horizontal", 3))
sketch9.addConstraint(Sketcher.Constraint("Horizontal", 7))
sketch9.addConstraint(Sketcher.Constraint("Horizontal", 9))
sketch9.addConstraint(Sketcher.Constraint("Horizontal", 13))
sketch9.addConstraint(Sketcher.Constraint("Horizontal", 15))
sketch9.addConstraint(Sketcher.Constraint("Parallel", 2, 4))
sketch9.addConstraint(Sketcher.Constraint("Parallel", 0, 5))
sketch9.addConstraint(Sketcher.Constraint("Parallel", 5, 6))
sketch9.addConstraint(Sketcher.Constraint("Parallel", 4, 8))
sketch9.addConstraint(Sketcher.Constraint("Parallel", 8, 10))
sketch9.addConstraint(Sketcher.Constraint("Parallel", 6, 11))
sketch9.addConstraint(Sketcher.Constraint("Parallel", 11, 12))
sketch9.addConstraint(Sketcher.Constraint("Parallel", 10, 14))
sketch9.addConstraint(Sketcher.Constraint("Parallel", 14, 16))
sketch9.addConstraint(Sketcher.Constraint("Parallel", 12, 17))
sketch9.addConstraint(Sketcher.Constraint("Horizontal", 2, 2, 3, 2))
sketch9.addConstraint(Sketcher.Constraint("Horizontal", 1, 2, 4, 2))
sketch9.addConstraint(Sketcher.Constraint("Horizontal", 4, 2, 6, 2))
sketch9.addConstraint(Sketcher.Constraint("Horizontal", 5, 2, 8, 2))
sketch9.addConstraint(Sketcher.Constraint("Horizontal", 8, 2, 9, 2))
sketch9.addConstraint(Sketcher.Constraint("Horizontal", 7, 2, 10, 2))
sketch9.addConstraint(Sketcher.Constraint("Horizontal", 10, 2, 12, 2))
sketch9.addConstraint(Sketcher.Constraint("Horizontal", 11, 2, 14, 2))
sketch9.addConstraint(Sketcher.Constraint("Horizontal", 14, 2, 15, 2))
sketch9.addConstraint(Sketcher.Constraint("Horizontal", 13, 2, 16, 2))
sketch9.addConstraint(Sketcher.Constraint("Equal", 0, 2))
sketch9.addConstraint(Sketcher.Constraint("Angle", 0, Q("-60 deg")))
sketch9.addConstraint(Sketcher.Constraint("DistanceY", -1, 1, 0, 2, 70.0))
sketch9.addConstraint(Sketcher.Constraint("DistanceX", -1, 1, 1, 2, 35.0))
sketch9.addConstraint(Sketcher.Constraint("DistanceX", 0, 2, 4, 2, 10.0))
sketch9.addConstraint(Sketcher.Constraint("DistanceX", 4, 2, 7, 2, 10.0))
sketch9.addConstraint(Sketcher.Constraint("DistanceX", 6, 2, 10, 2, 10.0))
sketch9.addConstraint(Sketcher.Constraint("DistanceX", 10, 2, 13, 2, 10.0))
sketch9.addConstraint(Sketcher.Constraint("DistanceX", 12, 2, 16, 2, 10.0))
sketch9.addConstraint(Sketcher.Constraint("DistanceX", 1, 2, 1, 1, 46.19))
pocket8 = body.newObject("PartDesign::Pocket", "Pocket007")
pocket8.Profile = sketch9
pocket8.Type = "ThroughAll"
pocket8.Reversed = True
doc.recompute()

fillet2 = body.newObject("PartDesign::Fillet", "Fillet001")
fillet2.Base = (pocket8, edges_at(pocket8, [
    (134.285, 2, 110.002),
    (180.475, 2, 110.002),
    (190.475, 2, 110.002),
    (167.38, 2, 70),
    (213.57, 2, 70),
    (68.095, 2, 110.002),
    (91.19, 2, 70),
    (114.285, 2, 110.002),
    (124.285, 2, 110.002),
    (101.19, 2, 70),
    (147.38, 2, 70),
    (200.475, 2, 110.002),
    (223.57, 2, 70),
    (246.665, 2, 110.002),
    (58.095, 2, 110.002),
    (35, 2, 70),
    (81.19, 2, 70),
]))
fillet2.Radius = 3

doc.recompute()
